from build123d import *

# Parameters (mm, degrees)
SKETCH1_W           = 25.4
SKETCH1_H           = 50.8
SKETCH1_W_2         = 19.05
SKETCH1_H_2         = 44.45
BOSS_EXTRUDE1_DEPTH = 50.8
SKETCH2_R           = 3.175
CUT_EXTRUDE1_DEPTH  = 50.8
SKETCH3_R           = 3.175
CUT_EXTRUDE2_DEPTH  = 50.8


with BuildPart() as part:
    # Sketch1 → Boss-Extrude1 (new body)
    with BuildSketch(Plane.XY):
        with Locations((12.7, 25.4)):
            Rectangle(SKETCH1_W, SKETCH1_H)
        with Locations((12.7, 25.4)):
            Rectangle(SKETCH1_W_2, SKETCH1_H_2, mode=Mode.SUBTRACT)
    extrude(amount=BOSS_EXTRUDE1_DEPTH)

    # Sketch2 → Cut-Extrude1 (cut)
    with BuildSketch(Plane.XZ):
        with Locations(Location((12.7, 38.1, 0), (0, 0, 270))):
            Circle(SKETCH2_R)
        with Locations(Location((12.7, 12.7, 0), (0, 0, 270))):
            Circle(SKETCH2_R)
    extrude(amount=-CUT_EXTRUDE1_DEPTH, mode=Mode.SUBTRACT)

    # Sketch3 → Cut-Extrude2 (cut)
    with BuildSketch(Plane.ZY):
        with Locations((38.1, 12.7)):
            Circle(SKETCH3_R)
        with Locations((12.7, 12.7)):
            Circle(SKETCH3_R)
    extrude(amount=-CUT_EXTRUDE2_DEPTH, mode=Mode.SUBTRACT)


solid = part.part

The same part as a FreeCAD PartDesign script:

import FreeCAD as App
import Part
import Sketcher

V = App.Vector
Q = App.Units.Quantity


def add_polygon(sketch, points):
    """Adds a closed chain of lines whose ends are joined by coincident constraints."""
    first, n = sketch.GeometryCount, len(points)
    for a, b in zip(points, points[1:] + points[:1]):
        sketch.addGeometry(Part.LineSegment(App.Vector(*a, 0), App.Vector(*b, 0)), False)
    for i in range(n):
        sketch.addConstraint(Sketcher.Constraint("Coincident", first + i, 2, first + (i + 1) % n, 1))

doc = App.newDocument("Part")
params = doc.addObject("Spreadsheet::Sheet", "Params")
for row, (alias, value) in enumerate([
    ("sketch1_width", "1 in"),
    ("sketch1_height", "2 in"),
    ("sketch1_width2", "0.75 in"),
    ("sketch1_height2", "1.75 in"),
    ("pad1_length", "2 in"),
    ("sketch2_diameter", "0.25 in"),
    ("pocket1_length", "2 in"),
    ("sketch3_diameter", "0.25 in"),
    ("pocket2_length", "2 in"),
], start=1):
    params.set(f"A{row}", alias)
    params.set(f"B{row}", "=" + value)
    params.setAlias(f"B{row}", alias)

body = doc.addObject("PartDesign::Body", "Body")

# Sketch on XY plane
sketch1 = doc.addObject("Sketcher::SketchObject", "Sketch")
body.addObject(sketch1)
sketch1.AttachmentSupport = (doc.XY_Plane, [""])
sketch1.MapMode = "FlatFace"
add_polygon(sketch1, [(0, 51), (0, 0), (25, 0), (25, 51)])  # lines 0-3
add_polygon(sketch1, [(22, 3), (3, 3), (3, 48), (22, 48)])  # lines 4-7
sketch1.addConstraint(Sketcher.Constraint("Vertical", 0))
sketch1.addConstraint(Sketcher.Constraint("Horizontal", 1))
sketch1.addConstraint(Sketcher.Constraint("Vertical", 2))
sketch1.addConstraint(Sketcher.Constraint("Horizontal", 3))
sketch1.addConstraint(Sketcher.Constraint("Horizontal", 4))
sketch1.addConstraint(Sketcher.Constraint("Vertical", 5))
sketch1.addConstraint(Sketcher.Constraint("Horizontal", 6))
sketch1.addConstraint(Sketcher.Constraint("Vertical", 7))
sketch1.addConstraint(Sketcher.Constraint("Coincident", 0, 2, -1, 1))
sketch1.addConstraint(Sketcher.Constraint("DistanceX", 1, 1, 1, 2, Q("1 in")))
sketch1.addConstraint(Sketcher.Constraint("DistanceY", 0, 2, 0, 1, Q("2 in")))
sketch1.addConstraint(Sketcher.Constraint("DistanceX", 4, 2, 4, 1, Q("0.75 in")))
sketch1.addConstraint(Sketcher.Constraint("DistanceY", 5, 1, 5, 2, Q("1.75 in")))
sketch1.addConstraint(Sketcher.Constraint("DistanceX", -1, 1, 4, 2, Q("0.125 in")))
sketch1.addConstraint(Sketcher.Constraint("DistanceY", -1, 1, 4, 2, Q("0.125 in")))
sketch1.setExpression("Constraints[17]", "Params.sketch1_width")
sketch1.setExpression("Constraints[18]", "Params.sketch1_height")
sketch1.setExpression("Constraints[19]", "Params.sketch1_width2")
sketch1.setExpression("Constraints[20]", "Params.sketch1_height2")
pad1 = doc.addObject("PartDesign::Pad", "Pad")
body.addObject(pad1)
pad1.Profile = sketch1
pad1.setExpression("Length", "Params.pad1_length")

# Sketch on XZ plane
sketch2 = doc.addObject("Sketcher::SketchObject", "Sketch001")
body.addObject(sketch2)
sketch2.AttachmentSupport = (doc.XZ_Plane, [""])
sketch2.MapMode = "FlatFace"
sketch2.addGeometry(Part.Circle(V(12.7, 38.1, 0), V(0, 0, 1), 3.2), False)
sketch2.addGeometry(Part.Circle(V(12.7, 12.7, 0), V(0, 0, 1), 3.2), False)
sketch2.addConstraint(Sketcher.Constraint("Equal", 0, 1))
sketch2.addConstraint(Sketcher.Constraint("Vertical", 0, 3, 1, 3))
sketch2.addConstraint(Sketcher.Constraint("Diameter", 0, Q("0.25 in")))
sketch2.addConstraint(Sketcher.Constraint("DistanceY", 1, 3, 0, 3, Q("1 in")))
sketch2.addConstraint(Sketcher.Constraint("DistanceX", -1, 1, 0, 3, Q("0.5 in")))
sketch2.addConstraint(Sketcher.Constraint("DistanceY", -1, 1, 0, 3, Q("1.5 in")))
sketch2.setExpression("Constraints[2]", "Params.sketch2_diameter")
pocket1 = doc.addObject("PartDesign::Pocket", "Pocket")
body.addObject(pocket1)
pocket1.Profile = sketch2
pocket1.setExpression("Length", "Params.pocket1_length")

# Sketch on YZ plane
sketch3 = doc.addObject("Sketcher::SketchObject", "Sketch002")
body.addObject(sketch3)
sketch3.AttachmentSupport = (doc.YZ_Plane, [""])
sketch3.MapMode = "FlatFace"
sketch3.addGeometry(Part.Circle(V(12.7, 38.1, 0), V(0, 0, 1), 3.2), False)
sketch3.addGeometry(Part.Circle(V(12.7, 12.7, 0), V(0, 0, 1), 3.2), False)
sketch3.addConstraint(Sketcher.Constraint("Equal", 0, 1))
sketch3.addConstraint(Sketcher.Constraint("Vertical", 0, 3, 1, 3))
sketch3.addConstraint(Sketcher.Constraint("Diameter", 0, Q("0.25 in")))
sketch3.addConstraint(Sketcher.Constraint("DistanceY", 1, 3, 0, 3, Q("1 in")))
sketch3.addConstraint(Sketcher.Constraint("DistanceX", -1, 1, 0, 3, Q("0.5 in")))
sketch3.addConstraint(Sketcher.Constraint("DistanceY", -1, 1, 0, 3, Q("1.5 in")))
sketch3.setExpression("Constraints[2]", "Params.sketch3_diameter")
pocket2 = doc.addObject("PartDesign::Pocket", "Pocket001")
body.addObject(pocket2)
pocket2.Profile = sketch3
pocket2.setExpression("Length", "Params.pocket2_length")
pocket2.Reversed = True

doc.recompute()
